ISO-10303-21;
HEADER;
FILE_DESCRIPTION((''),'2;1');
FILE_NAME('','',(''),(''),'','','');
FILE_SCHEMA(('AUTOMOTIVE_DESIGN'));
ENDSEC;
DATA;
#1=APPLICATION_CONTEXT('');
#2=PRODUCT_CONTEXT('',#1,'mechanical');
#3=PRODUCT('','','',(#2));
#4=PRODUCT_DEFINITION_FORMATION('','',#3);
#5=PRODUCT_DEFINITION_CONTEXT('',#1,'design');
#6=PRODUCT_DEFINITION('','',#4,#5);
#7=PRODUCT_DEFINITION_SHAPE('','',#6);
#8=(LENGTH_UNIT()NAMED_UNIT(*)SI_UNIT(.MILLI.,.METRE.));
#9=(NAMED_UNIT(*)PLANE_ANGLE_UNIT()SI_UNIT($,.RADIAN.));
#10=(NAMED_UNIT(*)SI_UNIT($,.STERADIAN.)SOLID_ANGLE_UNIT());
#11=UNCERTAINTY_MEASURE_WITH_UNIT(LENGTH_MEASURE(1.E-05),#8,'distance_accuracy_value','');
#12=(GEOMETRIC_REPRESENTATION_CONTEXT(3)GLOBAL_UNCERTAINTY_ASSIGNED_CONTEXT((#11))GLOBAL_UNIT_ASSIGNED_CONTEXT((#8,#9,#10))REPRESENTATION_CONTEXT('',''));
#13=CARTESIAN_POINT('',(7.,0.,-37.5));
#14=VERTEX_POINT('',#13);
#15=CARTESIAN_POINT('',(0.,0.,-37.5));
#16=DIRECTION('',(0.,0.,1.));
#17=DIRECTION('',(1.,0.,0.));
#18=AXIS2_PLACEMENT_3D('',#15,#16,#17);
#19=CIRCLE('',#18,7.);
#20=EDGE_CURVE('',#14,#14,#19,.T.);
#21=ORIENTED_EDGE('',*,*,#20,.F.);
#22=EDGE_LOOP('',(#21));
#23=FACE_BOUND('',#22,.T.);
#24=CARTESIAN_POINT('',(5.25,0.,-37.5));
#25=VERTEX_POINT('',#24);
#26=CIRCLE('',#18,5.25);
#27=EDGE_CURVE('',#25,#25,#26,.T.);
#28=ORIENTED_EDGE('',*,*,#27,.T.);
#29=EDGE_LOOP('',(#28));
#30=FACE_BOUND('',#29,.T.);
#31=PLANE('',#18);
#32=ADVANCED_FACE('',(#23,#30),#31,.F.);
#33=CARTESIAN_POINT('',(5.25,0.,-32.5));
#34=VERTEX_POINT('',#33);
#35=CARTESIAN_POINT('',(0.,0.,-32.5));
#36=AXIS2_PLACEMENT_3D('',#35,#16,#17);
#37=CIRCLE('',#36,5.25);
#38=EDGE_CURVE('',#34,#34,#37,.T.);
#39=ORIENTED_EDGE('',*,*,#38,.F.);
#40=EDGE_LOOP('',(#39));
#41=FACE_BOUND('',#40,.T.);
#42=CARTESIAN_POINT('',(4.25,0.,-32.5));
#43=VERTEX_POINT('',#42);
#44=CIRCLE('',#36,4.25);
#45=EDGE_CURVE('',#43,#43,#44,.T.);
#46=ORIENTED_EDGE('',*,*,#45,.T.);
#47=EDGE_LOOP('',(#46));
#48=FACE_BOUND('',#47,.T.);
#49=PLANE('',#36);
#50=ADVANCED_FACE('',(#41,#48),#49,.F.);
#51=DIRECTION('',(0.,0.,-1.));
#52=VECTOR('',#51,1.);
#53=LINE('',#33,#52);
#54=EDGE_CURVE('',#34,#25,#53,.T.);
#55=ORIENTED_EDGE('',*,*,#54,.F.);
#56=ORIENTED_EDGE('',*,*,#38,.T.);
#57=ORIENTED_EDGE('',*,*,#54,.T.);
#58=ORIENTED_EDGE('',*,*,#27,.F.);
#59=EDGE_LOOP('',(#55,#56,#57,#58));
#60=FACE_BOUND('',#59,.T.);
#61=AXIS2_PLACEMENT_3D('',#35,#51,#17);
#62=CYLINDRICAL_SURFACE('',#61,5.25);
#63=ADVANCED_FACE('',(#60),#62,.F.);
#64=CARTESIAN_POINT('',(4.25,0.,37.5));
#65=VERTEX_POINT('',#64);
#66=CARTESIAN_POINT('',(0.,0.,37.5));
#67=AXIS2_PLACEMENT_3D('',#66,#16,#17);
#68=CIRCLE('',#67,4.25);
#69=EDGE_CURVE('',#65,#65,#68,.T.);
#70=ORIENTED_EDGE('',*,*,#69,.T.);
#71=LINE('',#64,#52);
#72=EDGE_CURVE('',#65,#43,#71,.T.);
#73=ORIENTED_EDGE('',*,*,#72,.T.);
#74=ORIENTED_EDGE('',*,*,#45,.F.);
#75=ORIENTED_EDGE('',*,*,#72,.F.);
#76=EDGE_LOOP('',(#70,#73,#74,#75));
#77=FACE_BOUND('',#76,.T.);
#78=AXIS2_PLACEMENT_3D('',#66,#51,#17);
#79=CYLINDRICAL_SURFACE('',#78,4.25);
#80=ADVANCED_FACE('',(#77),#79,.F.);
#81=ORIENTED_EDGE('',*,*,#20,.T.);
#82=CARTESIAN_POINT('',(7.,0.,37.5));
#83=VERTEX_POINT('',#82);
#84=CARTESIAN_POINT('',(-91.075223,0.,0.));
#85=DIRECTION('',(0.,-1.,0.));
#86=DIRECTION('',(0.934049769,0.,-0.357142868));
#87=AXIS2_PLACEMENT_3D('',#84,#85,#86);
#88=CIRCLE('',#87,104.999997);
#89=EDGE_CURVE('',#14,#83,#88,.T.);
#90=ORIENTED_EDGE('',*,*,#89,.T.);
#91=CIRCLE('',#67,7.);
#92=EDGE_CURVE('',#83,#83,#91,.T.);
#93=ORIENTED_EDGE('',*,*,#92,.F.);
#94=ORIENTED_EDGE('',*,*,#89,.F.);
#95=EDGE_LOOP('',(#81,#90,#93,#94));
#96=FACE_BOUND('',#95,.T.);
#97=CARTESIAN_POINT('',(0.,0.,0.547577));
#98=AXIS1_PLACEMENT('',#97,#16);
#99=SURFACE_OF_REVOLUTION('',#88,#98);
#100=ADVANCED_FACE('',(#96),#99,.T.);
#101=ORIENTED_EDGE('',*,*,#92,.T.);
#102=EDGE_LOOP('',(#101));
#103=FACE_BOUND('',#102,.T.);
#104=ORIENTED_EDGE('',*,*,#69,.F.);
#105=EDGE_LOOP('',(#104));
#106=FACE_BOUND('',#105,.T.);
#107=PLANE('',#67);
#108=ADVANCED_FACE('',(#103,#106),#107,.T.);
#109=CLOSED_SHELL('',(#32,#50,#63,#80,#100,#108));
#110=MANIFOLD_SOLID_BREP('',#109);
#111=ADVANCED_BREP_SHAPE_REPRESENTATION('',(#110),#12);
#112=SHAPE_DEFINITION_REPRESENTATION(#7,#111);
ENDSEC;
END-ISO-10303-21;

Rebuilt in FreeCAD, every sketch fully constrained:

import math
import FreeCAD as App
import Part
import Sketcher

V = App.Vector
Q = App.Units.Quantity

doc = App.newDocument("Part")
params = doc.addObject("Spreadsheet::Sheet", "Params")
for row, (alias, value) in enumerate([
    ("sketch1_width", "1 mm"),
    ("sketch1_height", "70 mm"),
    ("sketch1_height2", "5 mm"),
    ("sketch1_width2", "2.75 mm"),
    ("revolution_angle", "360 deg"),
], start=1):
    params.set(f"A{row}", alias)
    params.set(f"B{row}", "=" + value)
    params.setAlias(f"B{row}", alias)

body = doc.addObject("PartDesign::Body", "Body")

# Sketch on XZ plane
sketch1 = body.newObject("Sketcher::SketchObject", "Sketch")
sketch1.AttachmentSupport = (doc.getObject("XZ_Plane"), [""])
sketch1.MapMode = "FlatFace"
sketch1.addGeometry([
    Part.ArcOfCircle(Part.Circle(V(-91.1, 0, 0), V(0, 0, 1), 105), math.radians(-21), math.radians(21)),  # 0
    Part.LineSegment(V(7, 37.5, 0), V(4.2, 37.5, 0)),  # 1
    Part.LineSegment(V(4.2, 37.5, 0), V(4.2, -32.5, 0)),  # 2
    Part.LineSegment(V(4.2, -32.5, 0), V(5.2, -32.5, 0)),  # 3
    Part.LineSegment(V(5.2, -32.5, 0), V(5.2, -37.5, 0)),  # 4
    Part.LineSegment(V(5.2, -37.5, 0), V(7, -37.5, 0)),  # 5
], False)
sketch1.addConstraint([
    Sketcher.Constraint("Coincident", 0, 2, 1, 1),
    Sketcher.Constraint("Coincident", 1, 2, 2, 1),
    Sketcher.Constraint("Coincident", 2, 2, 3, 1),
    Sketcher.Constraint("Coincident", 3, 2, 4, 1),
    Sketcher.Constraint("Coincident", 4, 2, 5, 1),
    Sketcher.Constraint("Coincident", 5, 2, 0, 1),
    Sketcher.Constraint("Horizontal", 1),
    Sketcher.Constraint("Vertical", 2),
    Sketcher.Constraint("Horizontal", 3),
    Sketcher.Constraint("Vertical", 4),
    Sketcher.Constraint("Horizontal", 5),
    Sketcher.Constraint("Symmetric", 0, 2, 5, 2, -1),
    Sketcher.Constraint("DistanceX", 3, 1, 3, 2, Q("1 mm")),
    Sketcher.Constraint("DistanceY", 2, 2, 2, 1, Q("70 mm")),
    Sketcher.Constraint("DistanceY", 4, 2, 4, 1, Q("5 mm")),
    Sketcher.Constraint("DistanceX", -1, 1, 0, 2, Q("7 mm")),
    Sketcher.Constraint("DistanceX", 1, 2, 1, 1, Q("2.75 mm")),
    Sketcher.Constraint("Radius", 0, Q("104.999997 mm")),
])
sketch1.setExpression("Constraints[12]", "Params.sketch1_width")
sketch1.setExpression("Constraints[13]", "Params.sketch1_height")
sketch1.setExpression("Constraints[14]", "Params.sketch1_height2")
sketch1.setExpression("Constraints[16]", "Params.sketch1_width2")
revolution = body.newObject("PartDesign::Revolution", "Revolution")
revolution.Profile = sketch1
revolution.ReferenceAxis = (sketch1, ["V_Axis"])
revolution.setExpression("Angle", "Params.revolution_angle")

doc.recompute()
